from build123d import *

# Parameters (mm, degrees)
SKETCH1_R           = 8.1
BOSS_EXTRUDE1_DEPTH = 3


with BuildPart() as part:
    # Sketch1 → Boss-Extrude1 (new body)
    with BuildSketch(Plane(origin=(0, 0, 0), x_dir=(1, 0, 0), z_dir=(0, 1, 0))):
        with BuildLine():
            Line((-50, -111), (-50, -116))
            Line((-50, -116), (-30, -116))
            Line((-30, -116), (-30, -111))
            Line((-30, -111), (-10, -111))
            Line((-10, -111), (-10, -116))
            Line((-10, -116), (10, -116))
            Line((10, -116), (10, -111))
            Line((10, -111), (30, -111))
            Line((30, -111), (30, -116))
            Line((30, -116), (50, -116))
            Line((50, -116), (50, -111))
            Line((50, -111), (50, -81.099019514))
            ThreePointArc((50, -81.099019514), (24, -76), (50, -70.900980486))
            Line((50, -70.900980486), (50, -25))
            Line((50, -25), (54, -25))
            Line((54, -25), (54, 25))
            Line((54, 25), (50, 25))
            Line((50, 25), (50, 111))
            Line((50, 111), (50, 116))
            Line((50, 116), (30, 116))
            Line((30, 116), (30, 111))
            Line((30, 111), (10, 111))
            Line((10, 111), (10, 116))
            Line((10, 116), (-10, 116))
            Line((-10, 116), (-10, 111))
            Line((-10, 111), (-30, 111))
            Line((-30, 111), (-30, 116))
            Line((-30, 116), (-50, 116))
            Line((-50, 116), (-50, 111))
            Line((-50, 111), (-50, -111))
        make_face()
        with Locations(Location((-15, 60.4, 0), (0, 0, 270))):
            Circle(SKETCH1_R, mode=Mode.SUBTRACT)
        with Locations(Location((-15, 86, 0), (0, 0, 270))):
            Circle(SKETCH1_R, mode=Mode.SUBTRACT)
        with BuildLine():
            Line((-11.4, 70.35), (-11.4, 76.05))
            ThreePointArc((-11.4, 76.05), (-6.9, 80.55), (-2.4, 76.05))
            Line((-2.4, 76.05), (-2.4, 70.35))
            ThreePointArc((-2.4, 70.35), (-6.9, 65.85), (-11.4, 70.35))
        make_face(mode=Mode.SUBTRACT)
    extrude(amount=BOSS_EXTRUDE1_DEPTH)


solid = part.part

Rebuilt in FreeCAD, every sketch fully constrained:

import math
import FreeCAD as App
import Part
import Sketcher

doc = App.newDocument("Part")
body = doc.addObject("PartDesign::Body", "Body")

# Sketch on XZ plane
sketch1 = body.newObject("Sketcher::SketchObject", "Sketch")
sketch1.AttachmentSupport = (doc.getObject("XZ_Plane"), [""])
sketch1.MapMode = "FlatFace"
sketch1.addGeometry([
    Part.LineSegment(App.Vector(-50, 116, 0), App.Vector(-30, 116, 0)),  # 0
    Part.LineSegment(App.Vector(-30, 116, 0), App.Vector(-30, 111, 0)),  # 1
    Part.LineSegment(App.Vector(-30, 111, 0), App.Vector(-10, 111, 0)),  # 2
    Part.LineSegment(App.Vector(-10, 111, 0), App.Vector(-10, 116, 0)),  # 3
    Part.LineSegment(App.Vector(-10, 116, 0), App.Vector(10, 116, 0)),  # 4
    Part.LineSegment(App.Vector(10, 116, 0), App.Vector(10, 111, 0)),  # 5
    Part.LineSegment(App.Vector(10, 111, 0), App.Vector(30, 111, 0)),  # 6
    Part.LineSegment(App.Vector(30, 111, 0), App.Vector(30, 116, 0)),  # 7
    Part.LineSegment(App.Vector(30, 116, 0), App.Vector(50, 116, 0)),  # 8
    Part.LineSegment(App.Vector(50, 116, 0), App.Vector(50, 81.1, 0)),  # 9
    Part.ArcOfCircle(Part.Circle(App.Vector(37.5, 76, 0), App.Vector(0, 0, 1), 13.5), math.radians(22), math.radians(338)),  # 10
    Part.LineSegment(App.Vector(50, 70.9, 0), App.Vector(50, 25, 0)),  # 11
    Part.LineSegment(App.Vector(50, 25, 0), App.Vector(54, 25, 0)),  # 12
    Part.LineSegment(App.Vector(54, 25, 0), App.Vector(54, -25, 0)),  # 13
    Part.LineSegment(App.Vector(54, -25, 0), App.Vector(50, -25, 0)),  # 14
    Part.LineSegment(App.Vector(50, -25, 0), App.Vector(50, -116, 0)),  # 15
    Part.LineSegment(App.Vector(50, -116, 0), App.Vector(30, -116, 0)),  # 16
    Part.LineSegment(App.Vector(30, -116, 0), App.Vector(30, -111, 0)),  # 17
    Part.LineSegment(App.Vector(30, -111, 0), App.Vector(10, -111, 0)),  # 18
    Part.LineSegment(App.Vector(10, -111, 0), App.Vector(10, -116, 0)),  # 19
    Part.LineSegment(App.Vector(10, -116, 0), App.Vector(-10, -116, 0)),  # 20
    Part.LineSegment(App.Vector(-10, -116, 0), App.Vector(-10, -111, 0)),  # 21
    Part.LineSegment(App.Vector(-10, -111, 0), App.Vector(-30, -111, 0)),  # 22
    Part.LineSegment(App.Vector(-30, -111, 0), App.Vector(-30, -116, 0)),  # 23
    Part.LineSegment(App.Vector(-30, -116, 0), App.Vector(-50, -116, 0)),  # 24
    Part.LineSegment(App.Vector(-50, -116, 0), App.Vector(-50, 116, 0)),  # 25
    Part.Circle(App.Vector(-15, -60.4, 0), App.Vector(0, 0, 1), 8.1),  # 26
    Part.ArcOfCircle(Part.Circle(App.Vector(-6.9, -70.3, 0), App.Vector(0, 0, 1), 4.5), math.radians(0), math.radians(180)),  # 27
    Part.LineSegment(App.Vector(-11.4, -70.3, 0), App.Vector(-11.4, -76, 0)),  # 28
    Part.ArcOfCircle(Part.Circle(App.Vector(-6.9, -76, 0), App.Vector(0, 0, 1), 4.5), math.radians(180), math.radians(360)),  # 29
    Part.LineSegment(App.Vector(-2.4, -76, 0), App.Vector(-2.4, -70.3, 0)),  # 30
    Part.Circle(App.Vector(-15, -86, 0), App.Vector(0, 0, 1), 8.1),  # 31
], False)
sketch1.addConstraint([
    Sketcher.Constraint("Coincident", 0, 2, 1, 1),
    Sketcher.Constraint("Coincident", 1, 2, 2, 1),
    Sketcher.Constraint("Coincident", 2, 2, 3, 1),
    Sketcher.Constraint("Coincident", 3, 2, 4, 1),
    Sketcher.Constraint("Coincident", 4, 2, 5, 1),
    Sketcher.Constraint("Coincident", 5, 2, 6, 1),
    Sketcher.Constraint("Coincident", 6, 2, 7, 1),
    Sketcher.Constraint("Coincident", 7, 2, 8, 1),
    Sketcher.Constraint("Coincident", 8, 2, 9, 1),
    Sketcher.Constraint("Coincident", 9, 2, 10, 1),
    Sketcher.Constraint("Coincident", 10, 2, 11, 1),
    Sketcher.Constraint("Coincident", 11, 2, 12, 1),
    Sketcher.Constraint("Coincident", 12, 2, 13, 1),
    Sketcher.Constraint("Coincident", 13, 2, 14, 1),
    Sketcher.Constraint("Coincident", 14, 2, 15, 1),
    Sketcher.Constraint("Coincident", 15, 2, 16, 1),
    Sketcher.Constraint("Coincident", 16, 2, 17, 1),
    Sketcher.Constraint("Coincident", 17, 2, 18, 1),
    Sketcher.Constraint("Coincident", 18, 2, 19, 1),
    Sketcher.Constraint("Coincident", 19, 2, 20, 1),
    Sketcher.Constraint("Coincident", 20, 2, 21, 1),
    Sketcher.Constraint("Coincident", 21, 2, 22, 1),
    Sketcher.Constraint("Coincident", 22, 2, 23, 1),
    Sketcher.Constraint("Coincident", 23, 2, 24, 1),
    Sketcher.Constraint("Coincident", 24, 2, 25, 1),
    Sketcher.Constraint("Coincident", 25, 2, 0, 1),
    Sketcher.Constraint("Tangent", 27, 2, 28, 1),
    Sketcher.Constraint("Tangent", 28, 2, 29, 1),
    Sketcher.Constraint("Tangent", 29, 2, 30, 1),
    Sketcher.Constraint("Tangent", 30, 2, 27, 1),
    Sketcher.Constraint("Horizontal", 0),
    Sketcher.Constraint("Vertical", 1),
    Sketcher.Constraint("Horizontal", 2),
    Sketcher.Constraint("Vertical", 3),
    Sketcher.Constraint("Horizontal", 4),
    Sketcher.Constraint("Vertical", 5),
    Sketcher.Constraint("Horizontal", 6),
    Sketcher.Constraint("Vertical", 7),
    Sketcher.Constraint("Horizontal", 8),
    Sketcher.Constraint("Vertical", 9),
    Sketcher.Constraint("Vertical", 11),
    Sketcher.Constraint("Horizontal", 12),
    Sketcher.Constraint("Vertical", 13),
    Sketcher.Constraint("Horizontal", 14),
    Sketcher.Constraint("Vertical", 15),
    Sketcher.Constraint("Horizontal", 16),
    Sketcher.Constraint("Vertical", 17),
    Sketcher.Constraint("Horizontal", 18),
    Sketcher.Constraint("Vertical", 19),
    Sketcher.Constraint("Horizontal", 20),
    Sketcher.Constraint("Vertical", 21),
    Sketcher.Constraint("Horizontal", 22),
    Sketcher.Constraint("Vertical", 23),
    Sketcher.Constraint("Horizontal", 24),
    Sketcher.Constraint("Vertical", 25),
    Sketcher.Constraint("Vertical", 28),
    Sketcher.Constraint("Vertical", 30),
    Sketcher.Constraint("Equal", 26, 31),
    Sketcher.Constraint("Symmetric", 0, 2, 16, 2, -1, 1),
    Sketcher.Constraint("Symmetric", 2, 2, 18, 2, -1, 1),
    Sketcher.Constraint("Symmetric", 4, 2, 20, 2, -1, 1),
    Sketcher.Constraint("Symmetric", 6, 2, 22, 2, -1, 1),
    Sketcher.Constraint("Symmetric", 8, 2, 24, 2, -1, 1),
    Sketcher.Constraint("Symmetric", 2, 2, 5, 2, -2),
    Sketcher.Constraint("Symmetric", 0, 2, 7, 2, -2),
    Sketcher.Constraint("Symmetric", 11, 2, 14, 2, -1),
    Sketcher.Constraint("Horizontal", 0, 2, 3, 2),
    Sketcher.Constraint("Vertical", 26, 3, 31, 3),
    Sketcher.Constraint("Vertical", 9, 2, 10, 2),
    Sketcher.Constraint("Equal", 0, 2),
    Sketcher.Constraint("Equal", 2, 4),
    Sketcher.Constraint("Diameter", 26, 16.2),
    Sketcher.Constraint("Radius", 10, 13.5),
    Sketcher.Constraint("Radius", 27, 4.5),
    Sketcher.Constraint("DistanceX", 0, 1, 0, 2, 20.0),
    Sketcher.Constraint("DistanceX", 12, 1, 12, 2, 4.0),
    Sketcher.Constraint("DistanceY", 1, 2, 1, 1, 5.0),
    Sketcher.Constraint("DistanceY", 13, 2, 13, 1, 50.0),
    Sketcher.Constraint("DistanceY", 15, 2, 15, 1, 91.0),
    Sketcher.Constraint("DistanceY", 28, 2, 28, 1, 5.7),
    Sketcher.Constraint("DistanceY", -1, 1, 10, 3, 76.0),
    Sketcher.Constraint("DistanceX", 26, 3, -1, 1, 15.0),
    Sketcher.Constraint("DistanceY", 31, 3, -1, 1, 86.0),
    Sketcher.Constraint("DistanceX", -1, 1, 10, 3, 37.5),
    Sketcher.Constraint("DistanceY", 26, 3, -1, 1, 60.4),
    Sketcher.Constraint("DistanceX", 27, 3, -1, 1, 6.9),
    Sketcher.Constraint("DistanceY", 27, 3, -1, 1, 70.35),
])
pad1 = body.newObject("PartDesign::Pad", "Pad")
pad1.Profile = sketch1
pad1.Length = 3
pad1.Reversed = True

doc.recompute()
